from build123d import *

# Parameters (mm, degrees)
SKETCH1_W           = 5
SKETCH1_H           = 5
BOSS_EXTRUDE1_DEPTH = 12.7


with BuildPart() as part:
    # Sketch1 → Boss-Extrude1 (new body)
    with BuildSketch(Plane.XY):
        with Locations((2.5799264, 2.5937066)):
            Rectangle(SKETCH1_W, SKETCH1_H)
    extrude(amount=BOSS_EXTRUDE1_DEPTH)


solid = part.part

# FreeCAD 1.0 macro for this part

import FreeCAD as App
import Part
import Sketcher
from FreeCAD import Vector
Q = App.Units.Quantity

doc = App.newDocument("Part")
body = doc.addObject("PartDesign::Body", "Body")

# Sketch on XY plane
sketch1 = body.newObject("Sketcher::SketchObject", "Sketch")
sketch1.AttachmentSupport = (doc.getObject("XY_Plane"), [""])
sketch1.MapMode = "FlatFace"
sketch1.addGeometry(Part.LineSegment(Vector(0, 5, 0), Vector(0, 0, 0)), False)
sketch1.addGeometry(Part.LineSegment(Vector(0, 0, 0), Vector(5, 0, 0)), False)
sketch1.addGeometry(Part.LineSegment(Vector(5, 0, 0), Vector(5, 5, 0)), False)
sketch1.addGeometry(Part.LineSegment(Vector(5, 5, 0), Vector(0, 5, 0)), False)
sketch1.addConstraint(Sketcher.Constraint("Coincident", 0, 2, 1, 1))
sketch1.addConstraint(Sketcher.Constraint("Coincident", 1, 2, 2, 1))
sketch1.addConstraint(Sketcher.Constraint("Coincident", 2, 2, 3, 1))
sketch1.addConstraint(Sketcher.Constraint("Coincident", 3, 2, 0, 1))
sketch1.addConstraint(Sketcher.Constraint("Vertical", 0))
sketch1.addConstraint(Sketcher.Constraint("Horizontal", 1))
sketch1.addConstraint(Sketcher.Constraint("Vertical", 2))
sketch1.addConstraint(Sketcher.Constraint("Horizontal", 3))
sketch1.addConstraint(Sketcher.Constraint("Equal", 3, 0))
sketch1.addConstraint(Sketcher.Constraint("DistanceX", 1, 1, 1, 2, Q("5 mm")))
sketch1.addConstraint(Sketcher.Constraint("DistanceX", -1, 1, 0, 2, Q("0.079926 mm")))
sketch1.addConstraint(Sketcher.Constraint("DistanceY", -1, 1, 0, 2, Q("0.093707 mm")))
pad1 = body.newObject("PartDesign::Pad", "Pad")
pad1.Profile = sketch1
pad1.Length = 12.7

doc.recompute()
